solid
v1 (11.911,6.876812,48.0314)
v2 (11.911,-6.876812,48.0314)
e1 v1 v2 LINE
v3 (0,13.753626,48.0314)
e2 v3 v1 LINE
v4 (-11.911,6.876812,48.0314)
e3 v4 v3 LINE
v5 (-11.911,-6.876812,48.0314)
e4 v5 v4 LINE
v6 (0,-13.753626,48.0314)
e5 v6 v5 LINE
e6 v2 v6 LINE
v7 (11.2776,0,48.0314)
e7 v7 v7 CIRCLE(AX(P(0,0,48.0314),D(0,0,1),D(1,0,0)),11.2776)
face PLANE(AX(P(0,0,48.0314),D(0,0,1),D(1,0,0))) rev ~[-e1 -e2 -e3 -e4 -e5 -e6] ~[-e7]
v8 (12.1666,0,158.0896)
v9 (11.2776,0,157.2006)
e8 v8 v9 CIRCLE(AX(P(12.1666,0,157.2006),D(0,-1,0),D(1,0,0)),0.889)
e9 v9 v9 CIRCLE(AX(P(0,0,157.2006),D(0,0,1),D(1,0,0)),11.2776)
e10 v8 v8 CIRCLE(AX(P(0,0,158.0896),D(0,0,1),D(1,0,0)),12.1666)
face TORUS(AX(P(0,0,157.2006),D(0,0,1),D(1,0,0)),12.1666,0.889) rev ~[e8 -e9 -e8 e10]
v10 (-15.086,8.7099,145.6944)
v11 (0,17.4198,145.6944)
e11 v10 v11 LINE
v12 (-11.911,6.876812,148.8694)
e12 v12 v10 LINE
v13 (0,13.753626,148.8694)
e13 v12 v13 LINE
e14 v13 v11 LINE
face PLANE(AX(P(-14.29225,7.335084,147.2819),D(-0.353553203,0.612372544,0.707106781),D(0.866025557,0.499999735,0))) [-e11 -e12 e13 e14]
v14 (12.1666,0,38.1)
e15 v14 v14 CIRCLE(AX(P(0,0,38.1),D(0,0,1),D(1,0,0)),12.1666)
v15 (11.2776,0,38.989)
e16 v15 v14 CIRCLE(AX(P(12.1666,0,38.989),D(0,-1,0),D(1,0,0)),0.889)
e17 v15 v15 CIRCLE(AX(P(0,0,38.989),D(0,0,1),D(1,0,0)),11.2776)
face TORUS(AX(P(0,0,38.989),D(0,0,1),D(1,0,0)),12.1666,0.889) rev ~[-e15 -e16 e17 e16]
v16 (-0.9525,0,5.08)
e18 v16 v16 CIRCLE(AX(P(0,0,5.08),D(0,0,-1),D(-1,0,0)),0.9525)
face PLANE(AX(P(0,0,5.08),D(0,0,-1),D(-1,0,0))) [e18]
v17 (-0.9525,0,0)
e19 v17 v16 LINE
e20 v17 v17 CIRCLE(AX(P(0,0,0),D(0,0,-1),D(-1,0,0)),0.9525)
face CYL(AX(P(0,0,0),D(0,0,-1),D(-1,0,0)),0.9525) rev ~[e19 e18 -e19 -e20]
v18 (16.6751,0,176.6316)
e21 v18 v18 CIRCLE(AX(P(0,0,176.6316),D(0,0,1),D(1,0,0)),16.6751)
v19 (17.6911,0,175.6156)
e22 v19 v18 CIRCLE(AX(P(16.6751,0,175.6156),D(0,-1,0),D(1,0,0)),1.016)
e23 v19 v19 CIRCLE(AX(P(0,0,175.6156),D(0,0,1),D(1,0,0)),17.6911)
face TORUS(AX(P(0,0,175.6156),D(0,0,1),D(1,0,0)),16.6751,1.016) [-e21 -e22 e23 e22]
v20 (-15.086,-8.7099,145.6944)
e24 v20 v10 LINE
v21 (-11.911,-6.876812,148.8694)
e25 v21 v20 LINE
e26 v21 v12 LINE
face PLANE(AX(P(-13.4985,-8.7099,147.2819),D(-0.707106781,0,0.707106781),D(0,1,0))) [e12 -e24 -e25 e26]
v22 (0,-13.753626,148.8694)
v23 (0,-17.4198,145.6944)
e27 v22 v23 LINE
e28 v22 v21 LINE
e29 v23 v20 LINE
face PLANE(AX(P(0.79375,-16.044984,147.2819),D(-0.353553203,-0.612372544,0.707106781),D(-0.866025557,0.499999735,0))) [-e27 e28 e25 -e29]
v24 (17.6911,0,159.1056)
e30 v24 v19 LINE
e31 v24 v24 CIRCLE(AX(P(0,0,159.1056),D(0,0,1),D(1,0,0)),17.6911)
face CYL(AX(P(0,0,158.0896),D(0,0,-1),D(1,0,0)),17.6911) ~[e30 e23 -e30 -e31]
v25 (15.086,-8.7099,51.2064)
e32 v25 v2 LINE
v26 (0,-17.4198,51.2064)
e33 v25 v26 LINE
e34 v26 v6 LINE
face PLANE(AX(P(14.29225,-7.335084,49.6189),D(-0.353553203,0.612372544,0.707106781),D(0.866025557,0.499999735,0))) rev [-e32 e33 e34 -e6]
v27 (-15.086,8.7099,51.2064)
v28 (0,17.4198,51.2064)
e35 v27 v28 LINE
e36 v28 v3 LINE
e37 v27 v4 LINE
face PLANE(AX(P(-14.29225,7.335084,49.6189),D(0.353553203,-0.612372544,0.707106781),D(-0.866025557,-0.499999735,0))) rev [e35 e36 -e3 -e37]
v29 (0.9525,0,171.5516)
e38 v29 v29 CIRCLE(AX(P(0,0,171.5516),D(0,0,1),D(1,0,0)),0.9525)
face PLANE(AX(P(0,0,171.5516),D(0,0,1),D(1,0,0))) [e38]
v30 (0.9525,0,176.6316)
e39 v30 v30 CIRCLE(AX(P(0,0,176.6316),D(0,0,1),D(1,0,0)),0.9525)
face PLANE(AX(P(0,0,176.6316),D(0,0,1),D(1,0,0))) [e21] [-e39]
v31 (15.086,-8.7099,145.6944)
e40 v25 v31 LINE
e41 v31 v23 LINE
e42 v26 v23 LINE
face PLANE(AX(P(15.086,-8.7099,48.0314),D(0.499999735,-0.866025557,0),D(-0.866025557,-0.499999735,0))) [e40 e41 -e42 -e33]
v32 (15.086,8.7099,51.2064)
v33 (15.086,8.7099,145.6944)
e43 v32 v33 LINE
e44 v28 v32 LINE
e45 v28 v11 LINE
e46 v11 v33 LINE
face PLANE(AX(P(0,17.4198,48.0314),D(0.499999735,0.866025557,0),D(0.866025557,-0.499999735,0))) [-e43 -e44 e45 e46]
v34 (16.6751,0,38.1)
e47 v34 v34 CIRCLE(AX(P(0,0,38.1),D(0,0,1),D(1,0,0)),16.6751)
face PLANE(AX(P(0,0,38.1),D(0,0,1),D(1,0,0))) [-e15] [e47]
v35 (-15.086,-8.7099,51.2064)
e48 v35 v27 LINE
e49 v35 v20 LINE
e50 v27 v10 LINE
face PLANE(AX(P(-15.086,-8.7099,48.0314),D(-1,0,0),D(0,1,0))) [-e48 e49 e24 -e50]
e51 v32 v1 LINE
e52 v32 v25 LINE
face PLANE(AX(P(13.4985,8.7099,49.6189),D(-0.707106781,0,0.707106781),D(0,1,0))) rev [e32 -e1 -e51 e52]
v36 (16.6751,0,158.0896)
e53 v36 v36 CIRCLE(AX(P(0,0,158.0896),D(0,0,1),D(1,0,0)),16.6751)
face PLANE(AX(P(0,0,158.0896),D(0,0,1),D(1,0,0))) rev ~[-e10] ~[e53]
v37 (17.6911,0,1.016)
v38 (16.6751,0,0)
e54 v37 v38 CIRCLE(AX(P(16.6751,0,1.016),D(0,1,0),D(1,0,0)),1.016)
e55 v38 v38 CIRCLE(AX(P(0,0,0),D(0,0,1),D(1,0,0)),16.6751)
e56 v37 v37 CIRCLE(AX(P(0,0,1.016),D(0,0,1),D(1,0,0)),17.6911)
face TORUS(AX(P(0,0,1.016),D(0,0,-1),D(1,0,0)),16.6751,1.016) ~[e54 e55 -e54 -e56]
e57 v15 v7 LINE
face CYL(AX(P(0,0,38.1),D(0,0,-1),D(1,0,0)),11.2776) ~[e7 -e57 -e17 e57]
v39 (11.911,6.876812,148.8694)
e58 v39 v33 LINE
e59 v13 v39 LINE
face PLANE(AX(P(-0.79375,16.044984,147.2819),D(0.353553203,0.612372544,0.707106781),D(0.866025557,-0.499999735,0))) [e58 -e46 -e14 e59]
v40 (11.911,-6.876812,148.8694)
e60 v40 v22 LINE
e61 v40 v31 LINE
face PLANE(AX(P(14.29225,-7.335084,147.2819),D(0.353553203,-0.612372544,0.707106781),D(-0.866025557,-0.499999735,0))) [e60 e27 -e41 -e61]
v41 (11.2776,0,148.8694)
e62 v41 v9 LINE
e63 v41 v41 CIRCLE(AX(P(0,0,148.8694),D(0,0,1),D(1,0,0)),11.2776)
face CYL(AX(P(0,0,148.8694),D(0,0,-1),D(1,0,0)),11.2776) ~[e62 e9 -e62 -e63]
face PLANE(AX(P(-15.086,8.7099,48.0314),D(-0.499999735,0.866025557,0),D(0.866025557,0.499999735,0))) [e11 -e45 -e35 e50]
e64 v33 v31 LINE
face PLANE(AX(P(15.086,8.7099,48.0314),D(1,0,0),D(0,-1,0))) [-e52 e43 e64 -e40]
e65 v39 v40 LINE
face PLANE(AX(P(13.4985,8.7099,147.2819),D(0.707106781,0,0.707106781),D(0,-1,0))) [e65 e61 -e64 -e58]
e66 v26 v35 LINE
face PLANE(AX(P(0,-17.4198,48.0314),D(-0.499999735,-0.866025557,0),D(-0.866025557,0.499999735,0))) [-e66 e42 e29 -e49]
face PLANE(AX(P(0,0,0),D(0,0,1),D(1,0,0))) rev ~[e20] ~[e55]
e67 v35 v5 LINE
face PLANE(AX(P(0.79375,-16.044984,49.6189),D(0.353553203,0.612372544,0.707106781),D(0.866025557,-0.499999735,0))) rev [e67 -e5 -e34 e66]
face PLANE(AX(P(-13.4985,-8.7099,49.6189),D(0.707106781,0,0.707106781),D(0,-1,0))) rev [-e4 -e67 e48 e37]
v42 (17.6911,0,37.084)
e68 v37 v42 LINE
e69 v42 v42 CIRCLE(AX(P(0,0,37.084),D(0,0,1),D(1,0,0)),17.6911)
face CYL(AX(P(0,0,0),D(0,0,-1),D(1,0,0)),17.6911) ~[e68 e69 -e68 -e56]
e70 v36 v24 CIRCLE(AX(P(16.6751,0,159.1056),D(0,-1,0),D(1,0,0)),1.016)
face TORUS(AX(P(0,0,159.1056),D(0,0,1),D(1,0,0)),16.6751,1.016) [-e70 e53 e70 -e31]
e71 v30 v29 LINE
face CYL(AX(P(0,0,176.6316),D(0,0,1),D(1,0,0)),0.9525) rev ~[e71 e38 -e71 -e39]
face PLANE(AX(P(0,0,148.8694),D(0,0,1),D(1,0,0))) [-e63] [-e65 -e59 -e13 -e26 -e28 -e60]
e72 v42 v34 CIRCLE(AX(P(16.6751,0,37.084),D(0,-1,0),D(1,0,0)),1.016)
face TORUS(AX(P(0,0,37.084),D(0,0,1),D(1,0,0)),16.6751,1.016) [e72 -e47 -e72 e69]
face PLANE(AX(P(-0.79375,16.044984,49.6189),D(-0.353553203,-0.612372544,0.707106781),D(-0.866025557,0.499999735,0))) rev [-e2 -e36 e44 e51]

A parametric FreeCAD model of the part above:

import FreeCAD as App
import Part
import Sketcher
Q = App.Units.Quantity


def edges_at(feature, points):
    """Names of the edges that pass closest to the given points."""
    edges = feature.Shape.Edges
    near = lambda p: min(range(len(edges)), key=lambda i: edges[i].distToShape(Part.Vertex(*p))[0])
    return sorted({f"Edge{near(p) + 1}" for p in points})

doc = App.newDocument("Part")
body = doc.addObject("PartDesign::Body", "Body")

sketch1 = body.newObject("Sketcher::SketchObject", "Sketch")
sketch1.AttachmentSupport = (doc.getObject("XY_Plane"), [""])
sketch1.MapMode = "FlatFace"
sketch1.addGeometry(Part.Circle(App.Vector(0, 0, 0), App.Vector(0, 0, 1), 18), False)
sketch1.addConstraint([
    Sketcher.Constraint("Coincident", 0, 3, -1, 1),
    Sketcher.Constraint("Diameter", 0, Q("1.393 in")),
])
pad1 = body.newObject("PartDesign::Pad", "Pad")
pad1.Profile = sketch1
pad1.Length = Q("1.5 in")

sketch2 = body.newObject("Sketcher::SketchObject", "Sketch001")
sketch2.AttachmentSupport = (doc.getObject("XY_Plane"), [""])
sketch2.MapMode = "FlatFace"
sketch2.AttachmentOffset = App.Placement(App.Vector(0, 0, 1.5 * 25.4), App.Rotation())
sketch2.addGeometry(Part.Circle(App.Vector(0, 0, 0), App.Vector(0, 0, 1), 11), False)
sketch2.addConstraint([
    Sketcher.Constraint("Coincident", 0, 3, -1, 1),
    Sketcher.Constraint("Diameter", 0, Q("0.888 in")),
])
pad2 = body.newObject("PartDesign::Pad", "Pad001")
pad2.Profile = sketch2
pad2.Length = Q("0.391 in")

sketch3 = body.newObject("Sketcher::SketchObject", "Sketch002")
sketch3.AttachmentSupport = (doc.getObject("XY_Plane"), [""])
sketch3.MapMode = "FlatFace"
sketch3.AttachmentOffset = App.Placement(App.Vector(0, 0, 1.891 * 25.4), App.Rotation())
sketch3.addGeometry([
    Part.LineSegment(App.Vector(15, 9, 0), App.Vector(0, 17, 0)),
    Part.LineSegment(App.Vector(0, 17, 0), App.Vector(-15, 9, 0)),
    Part.LineSegment(App.Vector(-15, 9, 0), App.Vector(-15, -9, 0)),
    Part.LineSegment(App.Vector(-15, -9, 0), App.Vector(0, -17, 0)),
    Part.LineSegment(App.Vector(0, -17, 0), App.Vector(15, -9, 0)),
    Part.LineSegment(App.Vector(15, -9, 0), App.Vector(15, 9, 0)),
], False)
sketch3.addConstraint([
    Sketcher.Constraint("Coincident", 0, 2, 1, 1),
    Sketcher.Constraint("Coincident", 1, 2, 2, 1),
    Sketcher.Constraint("Coincident", 2, 2, 3, 1),
    Sketcher.Constraint("Coincident", 3, 2, 4, 1),
    Sketcher.Constraint("Coincident", 4, 2, 5, 1),
    Sketcher.Constraint("Coincident", 5, 2, 0, 1),
    Sketcher.Constraint("Vertical", 2),
    Sketcher.Constraint("Vertical", 5),
    Sketcher.Constraint("Symmetric", 0, 2, 3, 2, -1, 1),
    Sketcher.Constraint("Symmetric", 1, 2, 4, 2, -1, 1),
    Sketcher.Constraint("PointOnObject", 0, 2, -2),
    Sketcher.Constraint("Parallel", 0, 3),
    Sketcher.Constraint("Horizontal", 2, 2, 4, 2),
    Sketcher.Constraint("Angle", 0, Q("150 deg")),
    Sketcher.Constraint("DistanceY", 2, 2, 2, 1, 17.4198),
    Sketcher.Constraint("DistanceY", 1, 2, 0, 2, Q("0.3429 in")),
])
pad3 = body.newObject("PartDesign::Pad", "Pad002")
pad3.Profile = sketch3
pad3.Length = Q("3.97 in")

sketch4 = body.newObject("Sketcher::SketchObject", "Sketch003")
sketch4.AttachmentSupport = (doc.getObject("XY_Plane"), [""])
sketch4.MapMode = "FlatFace"
sketch4.AttachmentOffset = App.Placement(App.Vector(0, 0, 5.861 * 25.4), App.Rotation())
sketch4.addGeometry(Part.Circle(App.Vector(0, 0, 0), App.Vector(0, 0, 1), 11), False)
sketch4.addConstraint([
    Sketcher.Constraint("Coincident", 0, 3, -1, 1),
    Sketcher.Constraint("Diameter", 0, Q("0.888 in")),
])
pad4 = body.newObject("PartDesign::Pad", "Pad003")
pad4.Profile = sketch4
pad4.Length = Q("0.363 in")

sketch5 = body.newObject("Sketcher::SketchObject", "Sketch004")
sketch5.AttachmentSupport = (doc.getObject("XY_Plane"), [""])
sketch5.MapMode = "FlatFace"
sketch5.AttachmentOffset = App.Placement(App.Vector(0, 0, 6.224 * 25.4), App.Rotation())
sketch5.addGeometry(Part.Circle(App.Vector(0, 0, 0), App.Vector(0, 0, 1), 18), False)
sketch5.addConstraint([
    Sketcher.Constraint("Coincident", 0, 3, -1, 1),
    Sketcher.Constraint("Diameter", 0, Q("1.393 in")),
])
pad5 = body.newObject("PartDesign::Pad", "Pad004")
pad5.Profile = sketch5
pad5.Length = Q("0.73 in")
doc.recompute()

fillet = body.newObject("PartDesign::Fillet", "Fillet")
fillet.Base = (pad5, edges_at(pad5, [(-17.691, 0, 176.632)]))
fillet.Radius = Q("0.04 in")
doc.recompute()

fillet2 = body.newObject("PartDesign::Fillet", "Fillet001")
fillet2.Base = (fillet, edges_at(fillet, [(-11.278, 0, 158.09)]))
fillet2.Radius = Q("0.035 in")
doc.recompute()

chamfer = body.newObject("PartDesign::Chamfer", "Chamfer")
chamfer.Base = (fillet2, edges_at(fillet2, [
    (7.543, 13.065, 148.869),
    (15.086, 0, 148.869),
    (7.543, -13.065, 148.869),
    (-7.543, -13.065, 148.869),
    (-15.086, 0, 148.869),
    (-7.543, 13.065, 148.869),
    (-7.543, -13.065, 48.031),
    (-15.086, 0, 48.031),
    (7.543, -13.065, 48.031),
    (15.086, 0, 48.031),
    (-7.543, 13.065, 48.031),
    (7.543, 13.065, 48.031),
]))
chamfer.Size = Q("0.125 in")
doc.recompute()

fillet3 = body.newObject("PartDesign::Fillet", "Fillet002")
fillet3.Base = (chamfer, edges_at(chamfer, [(-11.278, 0, 38.1)]))
fillet3.Radius = Q("0.035 in")
doc.recompute()

fillet4 = body.newObject("PartDesign::Fillet", "Fillet003")
fillet4.Base = (fillet3, edges_at(fillet3, [(-17.691, 0, 0)]))
fillet4.Radius = Q("0.04 in")
doc.recompute()

fillet5 = body.newObject("PartDesign::Fillet", "Fillet004")
fillet5.Base = (fillet4, edges_at(fillet4, [(-17.691, 0, 38.1)]))
fillet5.Radius = Q("0.04 in")
doc.recompute()

fillet6 = body.newObject("PartDesign::Fillet", "Fillet005")
fillet6.Base = (fillet5, edges_at(fillet5, [(-17.691, 0, 158.09)]))
fillet6.Radius = Q("0.04 in")

sketch6 = body.newObject("Sketcher::SketchObject", "Sketch005")
sketch6.AttachmentSupport = (doc.getObject("XY_Plane"), [""])
sketch6.MapMode = "FlatFace"
sketch6.AttachmentOffset = App.Placement(App.Vector(0, 0, 6.954 * 25.4), App.Rotation())
sketch6.addGeometry(Part.Circle(App.Vector(0, 0, 0), App.Vector(0, 0, 1), 1), False)
sketch6.addConstraint([
    Sketcher.Constraint("Coincident", 0, 3, -1, 1),
    Sketcher.Constraint("Diameter", 0, Q("0.075 in")),
])
pocket1 = body.newObject("PartDesign::Pocket", "Pocket")
pocket1.Profile = sketch6
pocket1.Length = Q("0.2 in")

sketch7 = body.newObject("Sketcher::SketchObject", "Sketch006")
sketch7.AttachmentSupport = (doc.getObject("XY_Plane"), [""])
sketch7.MapMode = "FlatFace"
sketch7.addGeometry(Part.Circle(App.Vector(0, 0, 0), App.Vector(0, 0, 1), 1), False)
sketch7.addConstraint([
    Sketcher.Constraint("Coincident", 0, 3, -1, 1),
    Sketcher.Constraint("Diameter", 0, Q("0.075 in")),
])
pocket2 = body.newObject("PartDesign::Pocket", "Pocket001")
pocket2.Profile = sketch7
pocket2.Length = Q("0.2 in")
pocket2.Reversed = True

doc.recompute()
